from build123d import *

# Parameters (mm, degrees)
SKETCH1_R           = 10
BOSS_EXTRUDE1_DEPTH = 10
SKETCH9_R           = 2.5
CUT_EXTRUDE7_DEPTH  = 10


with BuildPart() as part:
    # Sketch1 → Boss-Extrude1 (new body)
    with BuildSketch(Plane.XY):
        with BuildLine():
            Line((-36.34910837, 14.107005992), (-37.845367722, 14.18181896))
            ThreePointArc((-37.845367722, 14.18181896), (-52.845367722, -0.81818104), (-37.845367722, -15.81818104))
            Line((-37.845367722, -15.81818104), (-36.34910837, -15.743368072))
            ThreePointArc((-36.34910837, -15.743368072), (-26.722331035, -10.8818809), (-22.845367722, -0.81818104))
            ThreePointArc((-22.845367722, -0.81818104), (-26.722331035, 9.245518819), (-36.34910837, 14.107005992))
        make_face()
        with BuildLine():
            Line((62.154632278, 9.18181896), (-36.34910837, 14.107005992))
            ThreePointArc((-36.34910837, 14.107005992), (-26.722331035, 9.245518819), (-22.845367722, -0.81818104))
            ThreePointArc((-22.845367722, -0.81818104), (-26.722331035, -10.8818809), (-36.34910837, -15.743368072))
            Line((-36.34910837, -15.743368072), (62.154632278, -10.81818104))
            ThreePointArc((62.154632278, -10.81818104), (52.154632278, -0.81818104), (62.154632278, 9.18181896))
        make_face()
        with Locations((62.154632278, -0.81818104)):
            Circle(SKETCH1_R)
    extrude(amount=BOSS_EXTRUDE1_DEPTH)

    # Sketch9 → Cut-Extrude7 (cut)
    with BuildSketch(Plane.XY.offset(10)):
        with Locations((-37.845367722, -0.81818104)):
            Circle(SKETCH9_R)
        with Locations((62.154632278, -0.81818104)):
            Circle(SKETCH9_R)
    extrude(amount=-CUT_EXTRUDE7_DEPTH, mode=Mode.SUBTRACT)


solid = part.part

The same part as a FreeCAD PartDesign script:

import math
import FreeCAD as App
import Part
import Sketcher
Q = App.Units.Quantity

doc = App.newDocument("Part")
params = doc.addObject("Spreadsheet::Sheet", "Params")
for row, (alias, value) in enumerate([
    ("sketch1_radius", "15 mm"),
    ("sketch1_radius2", "10 mm"),
    ("pad1_length", "10 mm"),
    ("sketch2_diameter", "5 mm"),
    ("pocket1_length", "10 mm"),
], start=1):
    params.set(f"A{row}", alias)
    params.set(f"B{row}", "=" + value)
    params.setAlias(f"B{row}", alias)

body = doc.addObject("PartDesign::Body", "Body")

# Sketch on XY plane
sketch1 = body.newObject("Sketcher::SketchObject", "Sketch")
sketch1.AttachmentSupport = (doc.getObject("XY_Plane"), [""])
sketch1.MapMode = "FlatFace"
sketch1.addGeometry([
    Part.LineSegment(App.Vector(-36.3, 14.1, 0), App.Vector(-37.8, 14.2, 0)),  # 0
    Part.ArcOfCircle(Part.Circle(App.Vector(-37.8, -0.8, 0), App.Vector(0, 0, 1), 15), math.radians(90), math.radians(270)),  # 1
    Part.LineSegment(App.Vector(-37.8, -15.8, 0), App.Vector(-36.3, -15.7, 0)),  # 2
    Part.LineSegment(App.Vector(-36.3, -15.7, 0), App.Vector(62.2, -10.8, 0)),  # 3
    Part.ArcOfCircle(Part.Circle(App.Vector(62.2, -0.8, 0), App.Vector(0, 0, 1), 10), math.radians(-90), math.radians(90)),  # 4
    Part.LineSegment(App.Vector(62.2, 9.2, 0), App.Vector(-36.3, 14.1, 0)),  # 5
], False)
sketch1.addConstraint([
    Sketcher.Constraint("Coincident", 0, 2, 1, 1),
    Sketcher.Constraint("Coincident", 1, 2, 2, 1),
    Sketcher.Constraint("Coincident", 2, 2, 3, 1),
    Sketcher.Constraint("Coincident", 3, 2, 4, 1),
    Sketcher.Constraint("Coincident", 4, 2, 5, 1),
    Sketcher.Constraint("Coincident", 5, 2, 0, 1),
    Sketcher.Constraint("Parallel", 2, 3),
    Sketcher.Constraint("Parallel", 0, 5),
    Sketcher.Constraint("Horizontal", 1, 3, 4, 3),
    Sketcher.Constraint("Vertical", 1, 3, 0, 2),
    Sketcher.Constraint("Vertical", 0, 2, 1, 2),
    Sketcher.Constraint("Vertical", 4, 3, 3, 2),
    Sketcher.Constraint("Vertical", 3, 2, 4, 2),
    Sketcher.Constraint("Vertical", 2, 2, 5, 2),
    Sketcher.Constraint("Radius", 1, Q("15 mm")),
    Sketcher.Constraint("Radius", 4, Q("10 mm")),
    Sketcher.Constraint("DistanceX", 1, 3, 4, 3, Q("100 mm")),
    Sketcher.Constraint("Distance", 0, Q("1.498129 mm")),
    Sketcher.Constraint("DistanceY", 1, 3, -1, 1, Q("0.818181 mm")),
    Sketcher.Constraint("DistanceX", 2, 2, -1, 1, Q("36.349108 mm")),
])
sketch1.setExpression("Constraints[14]", "Params.sketch1_radius")
sketch1.setExpression("Constraints[15]", "Params.sketch1_radius2")
pad1 = body.newObject("PartDesign::Pad", "Pad")
pad1.Profile = sketch1
pad1.setExpression("Length", "Params.pad1_length")

# Sketch on XY plane
sketch2 = body.newObject("Sketcher::SketchObject", "Sketch001")
sketch2.AttachmentSupport = (doc.getObject("XY_Plane"), [""])
sketch2.MapMode = "FlatFace"
sketch2.AttachmentOffset = App.Placement(App.Vector(0, 0, 10), App.Rotation())
sketch2.addGeometry([
    Part.Circle(App.Vector(-37.8, -0.8, 0), App.Vector(0, 0, 1), 2.5),
    Part.Circle(App.Vector(62.2, -0.8, 0), App.Vector(0, 0, 1), 2.5),
], False)
sketch2.addConstraint([
    Sketcher.Constraint("Equal", 0, 1),
    Sketcher.Constraint("Horizontal", 0, 3, 1, 3),
    Sketcher.Constraint("Diameter", 0, Q("5 mm")),
    Sketcher.Constraint("DistanceX", 0, 3, 1, 3, Q("100 mm")),
    Sketcher.Constraint("DistanceY", 0, 3, -1, 1, Q("0.818181 mm")),
    Sketcher.Constraint("DistanceX", 0, 3, -1, 1, Q("37.845368 mm")),
])
sketch2.setExpression("Constraints[2]", "Params.sketch2_diameter")
pocket1 = body.newObject("PartDesign::Pocket", "Pocket")
pocket1.Profile = sketch2
pocket1.setExpression("Length", "Params.pocket1_length")

doc.recompute()
